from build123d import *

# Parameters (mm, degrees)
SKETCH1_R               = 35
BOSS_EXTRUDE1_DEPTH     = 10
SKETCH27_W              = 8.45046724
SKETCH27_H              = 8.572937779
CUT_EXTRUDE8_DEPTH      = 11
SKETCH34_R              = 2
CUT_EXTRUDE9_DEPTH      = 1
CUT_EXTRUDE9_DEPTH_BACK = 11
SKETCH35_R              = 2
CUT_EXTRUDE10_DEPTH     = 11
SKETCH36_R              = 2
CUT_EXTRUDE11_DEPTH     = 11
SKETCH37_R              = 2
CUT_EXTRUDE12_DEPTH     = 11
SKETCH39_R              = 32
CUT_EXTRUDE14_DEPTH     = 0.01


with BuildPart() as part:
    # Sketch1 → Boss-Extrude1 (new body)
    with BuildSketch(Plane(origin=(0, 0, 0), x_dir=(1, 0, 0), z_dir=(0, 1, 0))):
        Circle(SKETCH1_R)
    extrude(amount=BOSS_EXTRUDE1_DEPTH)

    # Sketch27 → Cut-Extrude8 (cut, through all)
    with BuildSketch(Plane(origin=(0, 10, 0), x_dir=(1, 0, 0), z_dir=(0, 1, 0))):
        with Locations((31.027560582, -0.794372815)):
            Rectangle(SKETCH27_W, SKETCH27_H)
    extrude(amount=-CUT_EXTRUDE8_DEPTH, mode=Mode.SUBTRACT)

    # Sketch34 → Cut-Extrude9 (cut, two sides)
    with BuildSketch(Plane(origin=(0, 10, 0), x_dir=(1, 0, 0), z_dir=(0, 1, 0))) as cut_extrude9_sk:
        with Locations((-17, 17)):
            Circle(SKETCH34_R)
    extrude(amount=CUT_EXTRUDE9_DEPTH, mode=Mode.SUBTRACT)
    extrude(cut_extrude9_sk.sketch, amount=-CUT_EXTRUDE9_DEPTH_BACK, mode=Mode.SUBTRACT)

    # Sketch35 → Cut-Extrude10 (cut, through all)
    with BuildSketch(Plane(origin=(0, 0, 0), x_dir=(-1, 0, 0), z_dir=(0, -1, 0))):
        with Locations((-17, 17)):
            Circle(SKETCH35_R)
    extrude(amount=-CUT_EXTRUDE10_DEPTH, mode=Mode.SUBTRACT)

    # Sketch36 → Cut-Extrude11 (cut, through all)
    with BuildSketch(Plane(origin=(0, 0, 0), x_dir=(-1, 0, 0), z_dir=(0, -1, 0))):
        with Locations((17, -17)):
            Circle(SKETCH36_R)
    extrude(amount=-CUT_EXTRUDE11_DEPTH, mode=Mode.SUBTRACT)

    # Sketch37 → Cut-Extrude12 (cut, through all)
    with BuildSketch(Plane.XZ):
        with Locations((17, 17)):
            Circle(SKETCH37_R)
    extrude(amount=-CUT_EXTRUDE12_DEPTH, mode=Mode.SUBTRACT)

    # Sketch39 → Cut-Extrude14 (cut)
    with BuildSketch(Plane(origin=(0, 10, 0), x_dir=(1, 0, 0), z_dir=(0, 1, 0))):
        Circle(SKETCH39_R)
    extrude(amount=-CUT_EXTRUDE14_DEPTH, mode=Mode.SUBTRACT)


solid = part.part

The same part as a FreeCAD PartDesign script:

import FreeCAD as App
import Part
import Sketcher
from FreeCAD import Vector


def add_polygon(sketch, points):
    """Adds a closed chain of lines whose ends are joined by coincident constraints."""
    first, n = sketch.GeometryCount, len(points)
    for a, b in zip(points, points[1:] + points[:1]):
        sketch.addGeometry(Part.LineSegment(App.Vector(*a, 0), App.Vector(*b, 0)), False)
    for i in range(n):
        sketch.addConstraint(Sketcher.Constraint("Coincident", first + i, 2, first + (i + 1) % n, 1))

doc = App.newDocument("Part")
params = doc.addObject("Spreadsheet::Sheet", "Params")
for row, (alias, value) in enumerate([
    ("sketch1_diameter", "70 mm"),
    ("pad1_length", "10 mm"),
    ("sketch3_diameter", "4 mm"),
    ("sketch4_diameter", "4 mm"),
    ("sketch5_diameter", "4 mm"),
    ("sketch6_diameter", "4 mm"),
    ("sketch7_diameter", "64 mm"),
    ("pocket6_length", "0.01 mm"),
], start=1):
    params.set(f"A{row}", alias)
    params.set(f"B{row}", "=" + value)
    params.setAlias(f"B{row}", alias)

body = doc.addObject("PartDesign::Body", "Body")

sketch1 = doc.addObject("Sketcher::SketchObject", "Sketch")
body.addObject(sketch1)
sketch1.AttachmentSupport = (doc.XZ_Plane, [""])
sketch1.MapMode = "FlatFace"
sketch1.addGeometry(Part.Circle(Vector(0, 0, 0), Vector(0, 0, 1), 35), False)
sketch1.addConstraint([
    Sketcher.Constraint("Coincident", 0, 3, -1, 1),
    Sketcher.Constraint("Diameter", 0, 70.0),
])
sketch1.setExpression("Constraints[1]", "Params.sketch1_diameter")
pad1 = doc.addObject("PartDesign::Pad", "Pad")
body.addObject(pad1)
pad1.Profile = sketch1
pad1.setExpression("Length", "Params.pad1_length")
pad1.Reversed = True

sketch2 = doc.addObject("Sketcher::SketchObject", "Sketch001")
body.addObject(sketch2)
sketch2.AttachmentSupport = (doc.XZ_Plane, [""])
sketch2.MapMode = "FlatFace"
sketch2.AttachmentOffset = App.Placement(Vector(0, 0, -10), App.Rotation())
add_polygon(sketch2, [(26.802327, -3.492096), (26.802327, 5.080842), (35.252794, 5.080842), (35.252794, -3.492096)])
sketch2.addConstraint([
    Sketcher.Constraint("Vertical", 0),
    Sketcher.Constraint("Horizontal", 1),
    Sketcher.Constraint("Vertical", 2),
    Sketcher.Constraint("Horizontal", 3),
    Sketcher.Constraint("DistanceX", 1, 1, 1, 2, 8.450467),
    Sketcher.Constraint("DistanceY", 0, 1, 0, 2, 8.572938),
    Sketcher.Constraint("DistanceY", -1, 1, 0, 2, 5.080842),
    Sketcher.Constraint("DistanceX", -1, 1, 0, 2, 26.802327),
])
pocket1 = doc.addObject("PartDesign::Pocket", "Pocket")
body.addObject(pocket1)
pocket1.Profile = sketch2
pocket1.Type = "ThroughAll"
pocket1.Reversed = True

sketch3 = doc.addObject("Sketcher::SketchObject", "Sketch002")
body.addObject(sketch3)
sketch3.AttachmentSupport = (doc.XZ_Plane, [""])
sketch3.MapMode = "FlatFace"
sketch3.AttachmentOffset = App.Placement(Vector(0, 0, -10), App.Rotation())
sketch3.addGeometry(Part.Circle(Vector(-17, -17, 0), Vector(0, 0, 1), 2), False)
sketch3.addConstraint([
    Sketcher.Constraint("Diameter", 0, 4.0),
    Sketcher.Constraint("DistanceX", 0, 3, -1, 1, 17.0),
    Sketcher.Constraint("DistanceY", 0, 3, -1, 1, 17.0),
])
sketch3.setExpression("Constraints[0]", "Params.sketch3_diameter")
pocket2 = doc.addObject("PartDesign::Pocket", "Pocket001")
body.addObject(pocket2)
pocket2.Profile = sketch3
pocket2.Type = "ThroughAll"
pocket2.Midplane = True

sketch4 = doc.addObject("Sketcher::SketchObject", "Sketch003")
body.addObject(sketch4)
sketch4.AttachmentSupport = (doc.XZ_Plane, [""])
sketch4.MapMode = "FlatFace"
sketch4.addGeometry(Part.Circle(Vector(17, -17, 0), Vector(0, 0, 1), 2), False)
sketch4.addConstraint([
    Sketcher.Constraint("Diameter", 0, 4.0),
    Sketcher.Constraint("DistanceX", -1, 1, 0, 3, 17.0),
    Sketcher.Constraint("DistanceY", 0, 3, -1, 1, 17.0),
])
sketch4.setExpression("Constraints[0]", "Params.sketch4_diameter")
pocket3 = doc.addObject("PartDesign::Pocket", "Pocket002")
body.addObject(pocket3)
pocket3.Profile = sketch4
pocket3.Type = "ThroughAll"

sketch5 = doc.addObject("Sketcher::SketchObject", "Sketch004")
body.addObject(sketch5)
sketch5.AttachmentSupport = (doc.XZ_Plane, [""])
sketch5.MapMode = "FlatFace"
sketch5.addGeometry(Part.Circle(Vector(-17, 17, 0), Vector(0, 0, 1), 2), False)
sketch5.addConstraint([
    Sketcher.Constraint("Diameter", 0, 4.0),
    Sketcher.Constraint("DistanceX", 0, 3, -1, 1, 17.0),
    Sketcher.Constraint("DistanceY", -1, 1, 0, 3, 17.0),
])
sketch5.setExpression("Constraints[0]", "Params.sketch5_diameter")
pocket4 = doc.addObject("PartDesign::Pocket", "Pocket003")
body.addObject(pocket4)
pocket4.Profile = sketch5
pocket4.Type = "ThroughAll"

sketch6 = doc.addObject("Sketcher::SketchObject", "Sketch005")
body.addObject(sketch6)
sketch6.AttachmentSupport = (doc.XZ_Plane, [""])
sketch6.MapMode = "FlatFace"
sketch6.addGeometry(Part.Circle(Vector(17, 17, 0), Vector(0, 0, 1), 2), False)
sketch6.addConstraint([
    Sketcher.Constraint("Diameter", 0, 4.0),
    Sketcher.Constraint("DistanceX", -1, 1, 0, 3, 17.0),
    Sketcher.Constraint("DistanceY", -1, 1, 0, 3, 17.0),
])
sketch6.setExpression("Constraints[0]", "Params.sketch6_diameter")
pocket5 = doc.addObject("PartDesign::Pocket", "Pocket004")
body.addObject(pocket5)
pocket5.Profile = sketch6
pocket5.Type = "ThroughAll"

sketch7 = doc.addObject("Sketcher::SketchObject", "Sketch006")
body.addObject(sketch7)
sketch7.AttachmentSupport = (doc.XZ_Plane, [""])
sketch7.MapMode = "FlatFace"
sketch7.AttachmentOffset = App.Placement(Vector(0, 0, -10), App.Rotation())
sketch7.addGeometry(Part.Circle(Vector(0, 0, 0), Vector(0, 0, 1), 32), False)
sketch7.addConstraint([
    Sketcher.Constraint("Coincident", 0, 3, -1, 1),
    Sketcher.Constraint("Diameter", 0, 64.0),
])
sketch7.setExpression("Constraints[1]", "Params.sketch7_diameter")
pocket6 = doc.addObject("PartDesign::Pocket", "Pocket005")
body.addObject(pocket6)
pocket6.Profile = sketch7
pocket6.setExpression("Length", "Params.pocket6_length")
pocket6.Reversed = True

doc.recompute()
